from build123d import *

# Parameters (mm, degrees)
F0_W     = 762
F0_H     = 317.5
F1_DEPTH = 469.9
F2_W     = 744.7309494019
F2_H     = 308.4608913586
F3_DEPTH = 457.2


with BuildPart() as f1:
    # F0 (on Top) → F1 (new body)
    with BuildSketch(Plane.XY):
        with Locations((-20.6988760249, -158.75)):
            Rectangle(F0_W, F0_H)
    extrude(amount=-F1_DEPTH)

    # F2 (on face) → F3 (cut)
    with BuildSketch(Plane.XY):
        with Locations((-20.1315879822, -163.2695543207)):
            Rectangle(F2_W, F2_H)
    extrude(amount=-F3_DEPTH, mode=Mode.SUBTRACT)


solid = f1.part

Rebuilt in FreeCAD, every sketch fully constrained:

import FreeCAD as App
import Part
import Sketcher

V = App.Vector
Q = App.Units.Quantity

doc = App.newDocument("Part")
body = doc.addObject("PartDesign::Body", "Body")

sketch1 = body.newObject("Sketcher::SketchObject", "Sketch")
sketch1.AttachmentSupport = (doc.getObject("XY_Plane"), [""])
sketch1.MapMode = "FlatFace"
sketch1.addGeometry(Part.LineSegment(V(-401.698876, 0, 0), V(-401.698876, -317.5, 0)), False)
sketch1.addGeometry(Part.LineSegment(V(-401.698876, -317.5, 0), V(360.301124, -317.5, 0)), False)
sketch1.addGeometry(Part.LineSegment(V(360.301124, -317.5, 0), V(360.301124, 0, 0)), False)
sketch1.addGeometry(Part.LineSegment(V(360.301124, 0, 0), V(-401.698876, 0, 0)), False)
sketch1.addConstraint(Sketcher.Constraint("Coincident", 0, 2, 1, 1))
sketch1.addConstraint(Sketcher.Constraint("Coincident", 1, 2, 2, 1))
sketch1.addConstraint(Sketcher.Constraint("Coincident", 2, 2, 3, 1))
sketch1.addConstraint(Sketcher.Constraint("Coincident", 3, 2, 0, 1))
sketch1.addConstraint(Sketcher.Constraint("Vertical", 0))
sketch1.addConstraint(Sketcher.Constraint("Horizontal", 1))
sketch1.addConstraint(Sketcher.Constraint("Vertical", 2))
sketch1.addConstraint(Sketcher.Constraint("Horizontal", 3))
sketch1.addConstraint(Sketcher.Constraint("PointOnObject", 2, 2, -1))
sketch1.addConstraint(Sketcher.Constraint("DistanceX", 1, 1, 1, 2, Q("30 in")))
sketch1.addConstraint(Sketcher.Constraint("DistanceY", 0, 2, 0, 1, Q("12.5 in")))
sketch1.addConstraint(Sketcher.Constraint("DistanceX", 0, 2, -1, 1, Q("401.698876 mm")))
pad1 = body.newObject("PartDesign::Pad", "Pad")
pad1.Profile = sketch1
pad1.Length = Q("18.5 in")
pad1.Reversed = True

sketch2 = body.newObject("Sketcher::SketchObject", "Sketch001")
sketch2.AttachmentSupport = (doc.getObject("XY_Plane"), [""])
sketch2.MapMode = "FlatFace"
sketch2.addGeometry(Part.LineSegment(V(-392.497063, -9.039109, 0), V(-392.497063, -317.5, 0)), False)
sketch2.addGeometry(Part.LineSegment(V(-392.497063, -317.5, 0), V(352.233887, -317.5, 0)), False)
sketch2.addGeometry(Part.LineSegment(V(352.233887, -317.5, 0), V(352.233887, -9.039109, 0)), False)
sketch2.addGeometry(Part.LineSegment(V(352.233887, -9.039109, 0), V(-392.497063, -9.039109, 0)), False)
sketch2.addConstraint(Sketcher.Constraint("Coincident", 0, 2, 1, 1))
sketch2.addConstraint(Sketcher.Constraint("Coincident", 1, 2, 2, 1))
sketch2.addConstraint(Sketcher.Constraint("Coincident", 2, 2, 3, 1))
sketch2.addConstraint(Sketcher.Constraint("Coincident", 3, 2, 0, 1))
sketch2.addConstraint(Sketcher.Constraint("Vertical", 0))
sketch2.addConstraint(Sketcher.Constraint("Horizontal", 1))
sketch2.addConstraint(Sketcher.Constraint("Vertical", 2))
sketch2.addConstraint(Sketcher.Constraint("Horizontal", 3))
sketch2.addConstraint(Sketcher.Constraint("DistanceY", 0, 2, -1, 1, Q("12.5 in")))
sketch2.addConstraint(Sketcher.Constraint("DistanceX", 1, 1, 1, 2, Q("744.730949 mm")))
sketch2.addConstraint(Sketcher.Constraint("DistanceY", 0, 2, 0, 1, Q("308.460891 mm")))
sketch2.addConstraint(Sketcher.Constraint("DistanceX", 0, 2, -1, 1, Q("392.497063 mm")))
pocket1 = body.newObject("PartDesign::Pocket", "Pocket")
pocket1.Profile = sketch2
pocket1.Length = Q("18 in")

doc.recompute()
